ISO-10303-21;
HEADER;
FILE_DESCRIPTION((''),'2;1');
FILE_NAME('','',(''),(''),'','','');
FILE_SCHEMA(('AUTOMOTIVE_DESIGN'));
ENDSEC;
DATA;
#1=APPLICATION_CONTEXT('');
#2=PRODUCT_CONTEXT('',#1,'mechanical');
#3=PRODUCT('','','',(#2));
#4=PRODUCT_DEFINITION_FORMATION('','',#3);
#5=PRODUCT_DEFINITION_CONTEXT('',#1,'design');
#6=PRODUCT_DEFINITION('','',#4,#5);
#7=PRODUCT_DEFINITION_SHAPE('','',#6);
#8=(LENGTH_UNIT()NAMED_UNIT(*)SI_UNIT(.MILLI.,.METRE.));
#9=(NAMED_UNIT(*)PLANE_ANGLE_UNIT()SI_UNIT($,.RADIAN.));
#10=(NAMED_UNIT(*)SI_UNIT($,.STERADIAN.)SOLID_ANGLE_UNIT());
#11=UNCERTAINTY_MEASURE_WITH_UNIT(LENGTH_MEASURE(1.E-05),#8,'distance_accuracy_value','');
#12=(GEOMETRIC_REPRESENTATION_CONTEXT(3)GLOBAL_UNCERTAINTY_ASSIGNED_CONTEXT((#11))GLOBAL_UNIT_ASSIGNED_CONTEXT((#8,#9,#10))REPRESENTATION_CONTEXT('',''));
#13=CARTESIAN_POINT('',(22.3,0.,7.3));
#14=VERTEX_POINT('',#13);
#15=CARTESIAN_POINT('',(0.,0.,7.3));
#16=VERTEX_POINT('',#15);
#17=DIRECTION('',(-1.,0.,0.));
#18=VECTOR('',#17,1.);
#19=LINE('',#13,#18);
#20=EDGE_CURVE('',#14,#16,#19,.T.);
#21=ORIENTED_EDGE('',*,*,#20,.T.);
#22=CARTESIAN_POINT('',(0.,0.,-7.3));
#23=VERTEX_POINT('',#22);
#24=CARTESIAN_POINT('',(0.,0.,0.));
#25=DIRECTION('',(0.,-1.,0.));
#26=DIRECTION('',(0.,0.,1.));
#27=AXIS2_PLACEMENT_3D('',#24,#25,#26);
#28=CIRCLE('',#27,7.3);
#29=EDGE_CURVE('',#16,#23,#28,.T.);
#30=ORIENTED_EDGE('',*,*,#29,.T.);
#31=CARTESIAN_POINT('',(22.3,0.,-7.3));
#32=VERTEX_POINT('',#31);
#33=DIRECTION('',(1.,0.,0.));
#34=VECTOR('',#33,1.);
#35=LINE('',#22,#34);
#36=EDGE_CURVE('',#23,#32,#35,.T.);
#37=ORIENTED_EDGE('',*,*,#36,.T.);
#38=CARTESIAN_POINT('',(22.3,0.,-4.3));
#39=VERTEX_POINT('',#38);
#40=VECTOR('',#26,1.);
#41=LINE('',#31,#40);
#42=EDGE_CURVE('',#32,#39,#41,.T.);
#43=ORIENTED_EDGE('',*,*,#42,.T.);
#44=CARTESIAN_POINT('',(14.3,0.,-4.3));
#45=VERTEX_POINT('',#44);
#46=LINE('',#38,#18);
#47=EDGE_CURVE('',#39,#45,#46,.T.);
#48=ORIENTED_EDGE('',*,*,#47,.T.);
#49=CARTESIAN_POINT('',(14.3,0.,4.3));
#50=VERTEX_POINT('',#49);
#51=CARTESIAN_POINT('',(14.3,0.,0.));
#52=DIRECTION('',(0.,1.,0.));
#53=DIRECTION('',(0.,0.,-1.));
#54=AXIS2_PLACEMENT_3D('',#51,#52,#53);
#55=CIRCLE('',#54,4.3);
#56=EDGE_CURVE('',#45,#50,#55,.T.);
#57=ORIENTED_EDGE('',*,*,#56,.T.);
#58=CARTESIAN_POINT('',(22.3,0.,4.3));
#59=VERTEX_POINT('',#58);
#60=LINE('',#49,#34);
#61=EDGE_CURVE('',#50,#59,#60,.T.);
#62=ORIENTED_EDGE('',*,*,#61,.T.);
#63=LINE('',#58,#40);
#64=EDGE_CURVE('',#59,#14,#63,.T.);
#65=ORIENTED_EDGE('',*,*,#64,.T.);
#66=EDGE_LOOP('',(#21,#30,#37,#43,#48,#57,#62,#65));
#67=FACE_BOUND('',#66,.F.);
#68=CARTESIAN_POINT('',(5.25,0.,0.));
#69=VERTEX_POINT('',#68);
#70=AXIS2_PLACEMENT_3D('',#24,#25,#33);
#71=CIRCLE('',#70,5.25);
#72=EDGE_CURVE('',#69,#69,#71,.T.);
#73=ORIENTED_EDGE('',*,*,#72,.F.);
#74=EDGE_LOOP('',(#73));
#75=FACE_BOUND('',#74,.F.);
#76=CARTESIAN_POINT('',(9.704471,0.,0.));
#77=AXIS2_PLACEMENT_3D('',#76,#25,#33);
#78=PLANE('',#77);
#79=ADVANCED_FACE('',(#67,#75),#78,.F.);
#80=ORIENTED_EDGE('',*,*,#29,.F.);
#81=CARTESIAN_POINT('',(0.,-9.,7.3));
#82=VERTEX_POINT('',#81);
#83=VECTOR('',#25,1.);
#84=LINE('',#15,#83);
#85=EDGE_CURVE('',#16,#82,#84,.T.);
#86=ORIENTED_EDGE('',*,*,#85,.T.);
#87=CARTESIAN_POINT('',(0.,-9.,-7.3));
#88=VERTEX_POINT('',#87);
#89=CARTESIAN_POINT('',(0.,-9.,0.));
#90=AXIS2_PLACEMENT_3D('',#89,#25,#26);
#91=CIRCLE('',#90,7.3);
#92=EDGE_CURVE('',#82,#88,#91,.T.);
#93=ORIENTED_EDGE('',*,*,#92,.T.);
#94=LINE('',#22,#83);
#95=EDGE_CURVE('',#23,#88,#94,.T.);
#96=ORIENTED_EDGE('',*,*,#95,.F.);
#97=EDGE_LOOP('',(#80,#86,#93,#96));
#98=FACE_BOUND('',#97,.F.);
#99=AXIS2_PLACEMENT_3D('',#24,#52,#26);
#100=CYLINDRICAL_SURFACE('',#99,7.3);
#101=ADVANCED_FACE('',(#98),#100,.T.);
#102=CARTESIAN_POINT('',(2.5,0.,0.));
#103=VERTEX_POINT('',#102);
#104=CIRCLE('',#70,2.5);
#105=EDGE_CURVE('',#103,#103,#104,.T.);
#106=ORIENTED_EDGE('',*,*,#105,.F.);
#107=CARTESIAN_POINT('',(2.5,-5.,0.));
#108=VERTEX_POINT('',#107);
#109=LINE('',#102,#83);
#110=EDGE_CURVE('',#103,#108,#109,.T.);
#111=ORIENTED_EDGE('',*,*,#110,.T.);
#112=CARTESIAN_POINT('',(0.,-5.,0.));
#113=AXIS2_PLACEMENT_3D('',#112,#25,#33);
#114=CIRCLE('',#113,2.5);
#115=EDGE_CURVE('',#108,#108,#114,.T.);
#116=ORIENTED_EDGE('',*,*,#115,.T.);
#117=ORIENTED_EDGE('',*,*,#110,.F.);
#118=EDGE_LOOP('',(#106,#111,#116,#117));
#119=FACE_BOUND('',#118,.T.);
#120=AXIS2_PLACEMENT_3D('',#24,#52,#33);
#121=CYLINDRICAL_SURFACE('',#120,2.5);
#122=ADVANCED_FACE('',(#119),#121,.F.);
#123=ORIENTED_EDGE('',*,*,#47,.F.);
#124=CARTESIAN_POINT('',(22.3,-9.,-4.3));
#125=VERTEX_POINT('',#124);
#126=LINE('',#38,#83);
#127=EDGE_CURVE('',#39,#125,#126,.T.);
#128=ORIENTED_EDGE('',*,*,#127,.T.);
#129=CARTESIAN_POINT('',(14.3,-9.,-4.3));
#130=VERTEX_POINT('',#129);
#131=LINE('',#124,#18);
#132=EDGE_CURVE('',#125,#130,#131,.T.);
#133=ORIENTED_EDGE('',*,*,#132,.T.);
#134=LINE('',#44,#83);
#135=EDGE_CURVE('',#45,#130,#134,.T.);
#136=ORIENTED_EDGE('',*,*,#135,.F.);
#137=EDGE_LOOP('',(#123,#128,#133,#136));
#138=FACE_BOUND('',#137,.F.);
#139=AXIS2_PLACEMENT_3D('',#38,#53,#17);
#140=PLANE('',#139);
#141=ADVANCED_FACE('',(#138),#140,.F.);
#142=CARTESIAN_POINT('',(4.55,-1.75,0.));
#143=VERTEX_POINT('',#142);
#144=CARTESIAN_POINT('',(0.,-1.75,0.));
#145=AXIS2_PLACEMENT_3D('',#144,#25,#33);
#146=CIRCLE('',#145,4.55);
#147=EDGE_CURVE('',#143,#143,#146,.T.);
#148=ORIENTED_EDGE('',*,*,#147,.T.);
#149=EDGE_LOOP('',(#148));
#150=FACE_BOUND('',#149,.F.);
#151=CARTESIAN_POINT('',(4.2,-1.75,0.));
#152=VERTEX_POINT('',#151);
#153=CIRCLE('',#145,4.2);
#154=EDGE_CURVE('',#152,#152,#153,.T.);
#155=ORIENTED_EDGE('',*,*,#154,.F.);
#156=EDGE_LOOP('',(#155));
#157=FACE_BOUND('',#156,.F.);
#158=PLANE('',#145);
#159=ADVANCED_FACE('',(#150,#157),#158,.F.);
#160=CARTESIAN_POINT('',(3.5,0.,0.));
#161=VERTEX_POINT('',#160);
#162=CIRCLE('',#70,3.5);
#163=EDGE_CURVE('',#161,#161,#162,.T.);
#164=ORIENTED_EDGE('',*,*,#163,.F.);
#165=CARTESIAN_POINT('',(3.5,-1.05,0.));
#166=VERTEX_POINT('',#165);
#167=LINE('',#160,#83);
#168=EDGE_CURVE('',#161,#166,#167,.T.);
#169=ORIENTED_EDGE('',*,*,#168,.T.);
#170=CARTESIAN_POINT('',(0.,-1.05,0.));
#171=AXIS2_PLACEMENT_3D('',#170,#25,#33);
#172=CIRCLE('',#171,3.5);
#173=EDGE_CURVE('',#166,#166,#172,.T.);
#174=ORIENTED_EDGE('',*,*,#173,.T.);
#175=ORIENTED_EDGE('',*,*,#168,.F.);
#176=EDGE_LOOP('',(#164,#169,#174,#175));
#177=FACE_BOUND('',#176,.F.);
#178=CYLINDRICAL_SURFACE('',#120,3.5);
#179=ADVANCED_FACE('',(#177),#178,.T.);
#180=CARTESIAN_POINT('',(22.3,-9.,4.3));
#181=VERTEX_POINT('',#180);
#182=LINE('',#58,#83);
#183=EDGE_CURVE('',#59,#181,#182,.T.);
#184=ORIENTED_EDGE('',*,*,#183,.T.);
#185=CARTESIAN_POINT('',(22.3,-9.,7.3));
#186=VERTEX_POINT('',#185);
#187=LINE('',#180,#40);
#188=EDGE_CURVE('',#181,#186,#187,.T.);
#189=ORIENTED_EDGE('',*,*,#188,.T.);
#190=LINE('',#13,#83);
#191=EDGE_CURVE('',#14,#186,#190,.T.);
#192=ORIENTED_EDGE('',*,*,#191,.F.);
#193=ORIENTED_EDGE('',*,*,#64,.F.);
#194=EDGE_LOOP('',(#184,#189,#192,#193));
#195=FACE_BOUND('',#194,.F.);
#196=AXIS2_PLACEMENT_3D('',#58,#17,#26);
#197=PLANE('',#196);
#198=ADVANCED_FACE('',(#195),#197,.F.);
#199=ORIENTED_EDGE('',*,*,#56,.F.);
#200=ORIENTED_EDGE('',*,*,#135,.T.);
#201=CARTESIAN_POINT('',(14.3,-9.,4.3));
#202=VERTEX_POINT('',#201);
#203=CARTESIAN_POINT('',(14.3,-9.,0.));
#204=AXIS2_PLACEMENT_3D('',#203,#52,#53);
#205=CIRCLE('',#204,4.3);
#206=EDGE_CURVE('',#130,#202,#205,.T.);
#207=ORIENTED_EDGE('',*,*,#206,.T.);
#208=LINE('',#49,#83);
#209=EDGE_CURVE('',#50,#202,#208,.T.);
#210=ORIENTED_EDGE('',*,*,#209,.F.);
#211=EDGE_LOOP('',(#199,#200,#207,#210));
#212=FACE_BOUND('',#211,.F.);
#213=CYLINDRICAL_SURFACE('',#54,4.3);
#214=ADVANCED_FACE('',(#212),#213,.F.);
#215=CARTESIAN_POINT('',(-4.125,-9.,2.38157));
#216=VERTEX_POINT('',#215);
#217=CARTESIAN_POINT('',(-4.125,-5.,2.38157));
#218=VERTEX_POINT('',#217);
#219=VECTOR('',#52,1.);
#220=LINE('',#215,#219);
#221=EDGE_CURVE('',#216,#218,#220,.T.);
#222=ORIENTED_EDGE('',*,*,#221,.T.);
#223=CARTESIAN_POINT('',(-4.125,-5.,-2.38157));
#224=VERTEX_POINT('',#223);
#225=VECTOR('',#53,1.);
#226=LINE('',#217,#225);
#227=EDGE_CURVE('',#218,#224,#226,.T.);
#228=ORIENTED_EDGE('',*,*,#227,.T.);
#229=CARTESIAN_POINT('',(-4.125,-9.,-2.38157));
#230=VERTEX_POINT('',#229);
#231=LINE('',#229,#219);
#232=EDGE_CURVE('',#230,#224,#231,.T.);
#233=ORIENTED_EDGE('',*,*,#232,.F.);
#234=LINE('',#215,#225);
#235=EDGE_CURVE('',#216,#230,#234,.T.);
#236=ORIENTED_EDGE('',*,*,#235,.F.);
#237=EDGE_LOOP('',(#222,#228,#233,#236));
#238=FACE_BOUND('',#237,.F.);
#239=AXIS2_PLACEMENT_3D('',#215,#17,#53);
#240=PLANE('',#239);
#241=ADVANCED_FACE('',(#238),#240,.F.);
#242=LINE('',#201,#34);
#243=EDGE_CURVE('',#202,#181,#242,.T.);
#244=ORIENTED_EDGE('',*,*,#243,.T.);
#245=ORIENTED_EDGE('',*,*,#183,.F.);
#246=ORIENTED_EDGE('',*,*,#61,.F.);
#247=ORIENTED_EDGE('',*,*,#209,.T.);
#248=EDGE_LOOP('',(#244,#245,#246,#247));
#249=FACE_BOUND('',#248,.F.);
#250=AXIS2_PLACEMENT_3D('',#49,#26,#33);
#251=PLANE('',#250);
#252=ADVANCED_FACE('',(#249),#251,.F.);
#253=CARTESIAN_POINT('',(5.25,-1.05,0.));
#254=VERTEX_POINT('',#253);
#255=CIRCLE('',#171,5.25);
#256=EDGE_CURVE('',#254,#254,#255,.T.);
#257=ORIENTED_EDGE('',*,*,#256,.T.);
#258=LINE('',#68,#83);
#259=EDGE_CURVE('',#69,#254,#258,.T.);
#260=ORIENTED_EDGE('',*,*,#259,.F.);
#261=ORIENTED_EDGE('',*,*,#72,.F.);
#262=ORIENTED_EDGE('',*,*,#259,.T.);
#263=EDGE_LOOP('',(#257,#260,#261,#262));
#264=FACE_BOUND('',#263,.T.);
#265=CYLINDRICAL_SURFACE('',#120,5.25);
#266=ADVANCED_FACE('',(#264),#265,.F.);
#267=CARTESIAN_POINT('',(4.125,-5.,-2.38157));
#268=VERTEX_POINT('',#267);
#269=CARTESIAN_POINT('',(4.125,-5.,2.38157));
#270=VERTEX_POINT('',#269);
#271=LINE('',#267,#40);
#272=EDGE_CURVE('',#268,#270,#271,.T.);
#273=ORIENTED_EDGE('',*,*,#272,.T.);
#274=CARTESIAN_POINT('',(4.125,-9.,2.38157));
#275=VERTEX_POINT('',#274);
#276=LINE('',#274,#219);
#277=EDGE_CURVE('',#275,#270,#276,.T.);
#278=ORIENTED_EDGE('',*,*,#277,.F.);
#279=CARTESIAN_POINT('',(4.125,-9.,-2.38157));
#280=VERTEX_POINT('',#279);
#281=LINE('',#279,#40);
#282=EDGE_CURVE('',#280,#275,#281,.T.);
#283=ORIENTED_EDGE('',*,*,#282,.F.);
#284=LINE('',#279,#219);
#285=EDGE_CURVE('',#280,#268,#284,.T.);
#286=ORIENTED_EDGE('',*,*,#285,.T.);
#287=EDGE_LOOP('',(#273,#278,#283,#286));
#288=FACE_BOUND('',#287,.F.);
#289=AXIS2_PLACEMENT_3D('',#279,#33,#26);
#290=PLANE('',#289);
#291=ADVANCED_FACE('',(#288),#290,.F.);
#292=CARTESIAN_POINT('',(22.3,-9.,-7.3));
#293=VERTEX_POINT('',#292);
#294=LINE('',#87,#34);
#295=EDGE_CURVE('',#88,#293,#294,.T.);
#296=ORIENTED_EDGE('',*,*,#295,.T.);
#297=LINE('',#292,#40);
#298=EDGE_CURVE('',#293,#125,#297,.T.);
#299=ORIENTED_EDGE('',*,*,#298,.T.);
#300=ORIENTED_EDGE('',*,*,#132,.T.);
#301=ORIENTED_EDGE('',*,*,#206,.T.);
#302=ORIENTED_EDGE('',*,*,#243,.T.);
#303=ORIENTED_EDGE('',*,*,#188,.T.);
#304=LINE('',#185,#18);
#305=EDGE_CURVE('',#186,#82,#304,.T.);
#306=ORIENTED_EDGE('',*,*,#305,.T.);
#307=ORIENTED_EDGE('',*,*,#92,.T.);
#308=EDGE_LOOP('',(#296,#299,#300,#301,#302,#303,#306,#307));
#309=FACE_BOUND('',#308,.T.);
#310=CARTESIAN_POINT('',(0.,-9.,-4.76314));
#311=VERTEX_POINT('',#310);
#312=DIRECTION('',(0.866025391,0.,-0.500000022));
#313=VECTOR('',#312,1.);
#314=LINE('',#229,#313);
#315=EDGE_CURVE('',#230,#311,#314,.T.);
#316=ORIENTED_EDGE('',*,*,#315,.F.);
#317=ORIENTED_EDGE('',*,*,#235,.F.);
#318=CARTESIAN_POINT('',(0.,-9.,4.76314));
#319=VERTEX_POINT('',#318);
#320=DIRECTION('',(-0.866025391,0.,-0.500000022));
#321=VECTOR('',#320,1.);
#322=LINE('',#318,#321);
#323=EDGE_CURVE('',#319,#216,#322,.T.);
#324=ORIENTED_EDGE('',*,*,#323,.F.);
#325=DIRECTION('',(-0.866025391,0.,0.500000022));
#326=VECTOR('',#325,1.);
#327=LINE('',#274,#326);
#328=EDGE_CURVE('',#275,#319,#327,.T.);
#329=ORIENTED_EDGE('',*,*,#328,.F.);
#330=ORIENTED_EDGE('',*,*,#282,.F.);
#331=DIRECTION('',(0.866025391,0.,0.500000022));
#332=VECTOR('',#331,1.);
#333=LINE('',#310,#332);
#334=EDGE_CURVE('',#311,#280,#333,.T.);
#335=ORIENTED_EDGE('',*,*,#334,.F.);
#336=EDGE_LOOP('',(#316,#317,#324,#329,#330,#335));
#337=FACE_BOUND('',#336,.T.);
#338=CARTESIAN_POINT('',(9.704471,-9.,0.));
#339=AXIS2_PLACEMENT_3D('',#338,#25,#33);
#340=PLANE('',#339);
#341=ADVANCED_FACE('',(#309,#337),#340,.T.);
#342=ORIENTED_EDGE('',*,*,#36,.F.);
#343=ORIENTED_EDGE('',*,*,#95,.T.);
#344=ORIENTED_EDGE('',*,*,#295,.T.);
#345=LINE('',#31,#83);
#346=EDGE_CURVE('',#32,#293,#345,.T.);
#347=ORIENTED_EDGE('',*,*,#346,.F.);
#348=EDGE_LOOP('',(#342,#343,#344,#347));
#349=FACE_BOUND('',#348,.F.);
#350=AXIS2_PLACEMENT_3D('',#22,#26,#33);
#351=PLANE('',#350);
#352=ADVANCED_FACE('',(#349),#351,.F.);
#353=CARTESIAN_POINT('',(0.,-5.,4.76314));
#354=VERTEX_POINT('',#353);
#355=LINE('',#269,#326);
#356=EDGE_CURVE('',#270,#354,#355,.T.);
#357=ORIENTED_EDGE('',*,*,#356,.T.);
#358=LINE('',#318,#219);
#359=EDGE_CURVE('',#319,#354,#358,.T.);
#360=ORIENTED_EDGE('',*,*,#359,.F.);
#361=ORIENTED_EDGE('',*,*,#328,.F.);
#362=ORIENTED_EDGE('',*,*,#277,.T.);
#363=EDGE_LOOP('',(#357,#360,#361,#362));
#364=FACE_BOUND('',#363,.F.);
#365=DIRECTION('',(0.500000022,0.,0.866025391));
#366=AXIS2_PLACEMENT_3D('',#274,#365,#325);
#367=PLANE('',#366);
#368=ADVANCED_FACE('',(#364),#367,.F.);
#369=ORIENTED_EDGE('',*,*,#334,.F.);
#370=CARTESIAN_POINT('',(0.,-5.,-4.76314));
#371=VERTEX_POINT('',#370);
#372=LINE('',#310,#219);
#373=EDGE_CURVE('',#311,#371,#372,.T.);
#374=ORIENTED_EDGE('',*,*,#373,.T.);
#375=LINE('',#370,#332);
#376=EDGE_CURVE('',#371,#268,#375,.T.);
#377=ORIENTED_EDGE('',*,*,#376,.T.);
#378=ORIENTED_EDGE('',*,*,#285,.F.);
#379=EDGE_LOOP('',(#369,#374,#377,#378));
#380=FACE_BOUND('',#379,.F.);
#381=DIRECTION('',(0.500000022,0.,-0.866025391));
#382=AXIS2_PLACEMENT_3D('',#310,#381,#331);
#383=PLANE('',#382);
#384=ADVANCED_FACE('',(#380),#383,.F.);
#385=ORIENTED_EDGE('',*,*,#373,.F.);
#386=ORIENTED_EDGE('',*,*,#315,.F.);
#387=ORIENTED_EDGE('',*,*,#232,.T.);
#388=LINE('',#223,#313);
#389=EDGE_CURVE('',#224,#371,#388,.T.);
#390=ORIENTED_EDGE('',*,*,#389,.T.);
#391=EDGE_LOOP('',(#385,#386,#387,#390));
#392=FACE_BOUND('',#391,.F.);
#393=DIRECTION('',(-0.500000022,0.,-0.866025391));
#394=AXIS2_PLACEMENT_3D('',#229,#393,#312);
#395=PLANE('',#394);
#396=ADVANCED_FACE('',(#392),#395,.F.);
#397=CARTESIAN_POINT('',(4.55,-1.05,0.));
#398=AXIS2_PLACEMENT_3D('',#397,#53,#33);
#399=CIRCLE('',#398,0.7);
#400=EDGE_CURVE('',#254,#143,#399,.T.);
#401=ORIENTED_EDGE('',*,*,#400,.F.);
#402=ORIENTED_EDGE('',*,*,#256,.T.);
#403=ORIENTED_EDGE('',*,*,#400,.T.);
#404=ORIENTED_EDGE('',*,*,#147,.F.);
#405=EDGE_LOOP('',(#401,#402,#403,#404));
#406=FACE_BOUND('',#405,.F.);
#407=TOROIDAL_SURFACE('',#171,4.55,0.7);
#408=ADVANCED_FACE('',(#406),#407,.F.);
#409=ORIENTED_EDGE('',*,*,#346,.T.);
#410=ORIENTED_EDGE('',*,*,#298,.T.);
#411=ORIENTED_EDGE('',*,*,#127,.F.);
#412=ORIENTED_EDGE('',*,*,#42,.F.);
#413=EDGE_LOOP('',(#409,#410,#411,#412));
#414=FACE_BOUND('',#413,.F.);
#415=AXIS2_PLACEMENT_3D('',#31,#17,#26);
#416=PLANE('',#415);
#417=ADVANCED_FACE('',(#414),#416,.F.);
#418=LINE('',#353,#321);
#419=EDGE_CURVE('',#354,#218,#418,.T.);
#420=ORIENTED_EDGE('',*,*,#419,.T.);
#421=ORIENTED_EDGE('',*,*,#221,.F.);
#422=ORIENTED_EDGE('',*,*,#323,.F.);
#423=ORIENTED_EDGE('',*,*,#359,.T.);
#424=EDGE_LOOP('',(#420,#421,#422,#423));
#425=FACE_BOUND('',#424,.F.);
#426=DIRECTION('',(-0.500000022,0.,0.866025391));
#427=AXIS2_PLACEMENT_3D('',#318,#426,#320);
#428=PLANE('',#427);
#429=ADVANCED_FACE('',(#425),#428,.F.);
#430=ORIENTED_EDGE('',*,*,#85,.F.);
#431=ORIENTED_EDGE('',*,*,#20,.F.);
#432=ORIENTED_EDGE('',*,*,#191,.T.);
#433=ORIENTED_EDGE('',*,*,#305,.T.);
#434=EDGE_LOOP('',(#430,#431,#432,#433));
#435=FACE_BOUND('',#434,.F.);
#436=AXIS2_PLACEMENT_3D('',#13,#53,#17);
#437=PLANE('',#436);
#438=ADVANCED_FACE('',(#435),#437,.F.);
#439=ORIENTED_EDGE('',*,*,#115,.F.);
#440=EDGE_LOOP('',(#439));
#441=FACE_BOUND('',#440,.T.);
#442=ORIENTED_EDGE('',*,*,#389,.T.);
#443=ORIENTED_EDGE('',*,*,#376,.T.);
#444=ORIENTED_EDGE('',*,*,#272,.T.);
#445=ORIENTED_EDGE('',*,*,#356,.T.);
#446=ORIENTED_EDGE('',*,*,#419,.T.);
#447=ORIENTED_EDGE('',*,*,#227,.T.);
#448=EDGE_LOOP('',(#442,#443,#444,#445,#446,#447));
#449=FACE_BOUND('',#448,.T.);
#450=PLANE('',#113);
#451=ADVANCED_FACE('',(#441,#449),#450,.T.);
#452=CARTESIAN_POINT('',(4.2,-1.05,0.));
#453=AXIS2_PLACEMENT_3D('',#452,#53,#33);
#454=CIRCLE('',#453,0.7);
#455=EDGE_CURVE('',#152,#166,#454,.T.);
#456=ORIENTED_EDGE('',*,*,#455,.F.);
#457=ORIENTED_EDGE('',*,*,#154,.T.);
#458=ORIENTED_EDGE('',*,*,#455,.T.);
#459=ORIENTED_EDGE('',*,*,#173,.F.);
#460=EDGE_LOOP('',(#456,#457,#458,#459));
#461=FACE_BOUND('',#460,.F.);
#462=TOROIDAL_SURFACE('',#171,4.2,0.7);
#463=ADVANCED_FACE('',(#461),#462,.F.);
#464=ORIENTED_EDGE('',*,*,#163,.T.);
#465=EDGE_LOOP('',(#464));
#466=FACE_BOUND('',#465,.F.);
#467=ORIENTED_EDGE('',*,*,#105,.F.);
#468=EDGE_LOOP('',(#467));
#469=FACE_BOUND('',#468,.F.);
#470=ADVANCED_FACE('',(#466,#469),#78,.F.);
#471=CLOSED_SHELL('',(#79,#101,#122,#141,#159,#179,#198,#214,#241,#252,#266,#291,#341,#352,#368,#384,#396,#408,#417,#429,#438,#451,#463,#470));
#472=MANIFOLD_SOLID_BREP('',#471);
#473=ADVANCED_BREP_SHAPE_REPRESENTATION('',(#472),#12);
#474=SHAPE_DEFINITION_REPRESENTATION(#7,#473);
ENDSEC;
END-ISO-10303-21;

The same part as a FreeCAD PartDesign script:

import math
import FreeCAD as App
import Part
import Sketcher

V = App.Vector
Q = App.Units.Quantity


def edges_at(feature, points):
    """Names of the edges that pass closest to the given points."""
    edges = feature.Shape.Edges
    near = lambda p: min(range(len(edges)), key=lambda i: edges[i].distToShape(Part.Vertex(*p))[0])
    return sorted({f"Edge{near(p) + 1}" for p in points})


def add_polygon(sketch, points):
    """Adds a closed chain of lines whose ends are joined by coincident constraints."""
    first, n = sketch.GeometryCount, len(points)
    for a, b in zip(points, points[1:] + points[:1]):
        sketch.addGeometry(Part.LineSegment(App.Vector(*a, 0), App.Vector(*b, 0)), False)
    for i in range(n):
        sketch.addConstraint(Sketcher.Constraint("Coincident", first + i, 2, first + (i + 1) % n, 1))

doc = App.newDocument("Part")
body = doc.addObject("PartDesign::Body", "Body")

sketch1 = doc.addObject("Sketcher::SketchObject", "Sketch")
body.addObject(sketch1)
sketch1.AttachmentSupport = (doc.XZ_Plane, [""])
sketch1.MapMode = "FlatFace"
sketch1.addGeometry([
    Part.LineSegment(V(22.3, 4.3, 0), V(22.3, 7.3, 0)),
    Part.LineSegment(V(22.3, 7.3, 0), V(0, 7.3, 0)),
    Part.ArcOfCircle(Part.Circle(V(0, 0, 0), V(0, 0, 1), 7.3), math.radians(90), math.radians(270)),
    Part.LineSegment(V(0, -7.3, 0), V(22.3, -7.3, 0)),
    Part.LineSegment(V(22.3, -7.3, 0), V(22.3, -4.3, 0)),
    Part.LineSegment(V(22.3, -4.3, 0), V(14.3, -4.3, 0)),
    Part.ArcOfCircle(Part.Circle(V(14.3, 0, 0), V(0, 0, 1), 4.3), math.radians(90), math.radians(270)),
    Part.LineSegment(V(14.3, 4.3, 0), V(22.3, 4.3, 0)),
    Part.Circle(V(0, 0, 0), V(0, 0, 1), 2.5),
], False)
sketch1.addConstraint([
    Sketcher.Constraint("Coincident", 0, 2, 1, 1),
    Sketcher.Constraint("Tangent", 1, 2, 2, 1),
    Sketcher.Constraint("Tangent", 2, 2, 3, 1),
    Sketcher.Constraint("Coincident", 3, 2, 4, 1),
    Sketcher.Constraint("Coincident", 4, 2, 5, 1),
    Sketcher.Constraint("Tangent", 5, 2, 6, 2),
    Sketcher.Constraint("Tangent", 6, 1, 7, 1),
    Sketcher.Constraint("Coincident", 7, 2, 0, 1),
    Sketcher.Constraint("Vertical", 0),
    Sketcher.Constraint("Horizontal", 1),
    Sketcher.Constraint("Horizontal", 3),
    Sketcher.Constraint("Vertical", 4),
    Sketcher.Constraint("Horizontal", 5),
    Sketcher.Constraint("Horizontal", 7),
    Sketcher.Constraint("Coincident", 2, 3, -1, 1),
    Sketcher.Constraint("Coincident", 8, 3, -1, 1),
    Sketcher.Constraint("Symmetric", 4, 2, 7, 2, -1),
    Sketcher.Constraint("Diameter", 8, 5.0),
    Sketcher.Constraint("Radius", 2, 7.3),
    Sketcher.Constraint("Radius", 6, 4.3),
    Sketcher.Constraint("DistanceX", 5, 2, 5, 1, 8.0),
    Sketcher.Constraint("DistanceX", 1, 2, 1, 1, 22.3),
])
pad1 = doc.addObject("PartDesign::Pad", "Pad")
body.addObject(pad1)
pad1.Profile = sketch1
pad1.Length = 9

sketch2 = doc.addObject("Sketcher::SketchObject", "Sketch001")
body.addObject(sketch2)
sketch2.AttachmentSupport = (doc.XZ_Plane, [""])
sketch2.MapMode = "FlatFace"
sketch2.AttachmentOffset = App.Placement(V(0, 0, 9), App.Rotation())
add_polygon(sketch2, [(4.1, -2.4), (4.1, 2.4), (0, 4.8), (-4.1, 2.4), (-4.1, -2.4), (0, -4.8)])
sketch2.addGeometry(Part.Circle(V(0, 0, 0), V(0, 0, 1), 2.5), False)
sketch2.addConstraint([
    Sketcher.Constraint("Vertical", 0),
    Sketcher.Constraint("Vertical", 3),
    Sketcher.Constraint("Coincident", 6, 3, -1, 1),
    Sketcher.Constraint("Symmetric", 0, 2, 3, 2, -1, 1),
    Sketcher.Constraint("Symmetric", 1, 2, 4, 2, -1, 1),
    Sketcher.Constraint("PointOnObject", 1, 2, -2),
    Sketcher.Constraint("Parallel", 2, 5),
    Sketcher.Constraint("Horizontal", 0, 2, 2, 2),
    Sketcher.Constraint("Diameter", 6, 5.0),
    Sketcher.Constraint("Angle", 1, Q("149.999999 deg")),
    Sketcher.Constraint("DistanceX", 2, 2, 0, 2, 8.25),
    Sketcher.Constraint("DistanceY", 0, 1, 0, 2, 4.76314),
])
pocket1 = doc.addObject("PartDesign::Pocket", "Pocket")
body.addObject(pocket1)
pocket1.Profile = sketch2
pocket1.Length = 4

sketch3 = doc.addObject("Sketcher::SketchObject", "Sketch002")
body.addObject(sketch3)
sketch3.AttachmentSupport = (doc.XZ_Plane, [""])
sketch3.MapMode = "FlatFace"
sketch3.addGeometry([
    Part.Circle(V(0, 0, 0), V(0, 0, 1), 5.2),
    Part.Circle(V(0, 0, 0), V(0, 0, 1), 3.5),
], False)
sketch3.addConstraint([
    Sketcher.Constraint("Coincident", 0, 3, -1, 1),
    Sketcher.Constraint("Coincident", 1, 3, -1, 1),
    Sketcher.Constraint("Diameter", 1, 7.0),
    Sketcher.Constraint("Diameter", 0, 10.5),
])
pocket2 = doc.addObject("PartDesign::Pocket", "Pocket001")
body.addObject(pocket2)
pocket2.Profile = sketch3
pocket2.Length = 1.75
pocket2.Reversed = True
doc.recompute()

fillet = doc.addObject("PartDesign::Fillet", "Fillet")
body.addObject(fillet)
fillet.Base = (pocket2, edges_at(pocket2, [(-5.25, -1.75, 0), (-3.5, -1.75, 0)]))
fillet.Radius = 0.7

doc.recompute()
